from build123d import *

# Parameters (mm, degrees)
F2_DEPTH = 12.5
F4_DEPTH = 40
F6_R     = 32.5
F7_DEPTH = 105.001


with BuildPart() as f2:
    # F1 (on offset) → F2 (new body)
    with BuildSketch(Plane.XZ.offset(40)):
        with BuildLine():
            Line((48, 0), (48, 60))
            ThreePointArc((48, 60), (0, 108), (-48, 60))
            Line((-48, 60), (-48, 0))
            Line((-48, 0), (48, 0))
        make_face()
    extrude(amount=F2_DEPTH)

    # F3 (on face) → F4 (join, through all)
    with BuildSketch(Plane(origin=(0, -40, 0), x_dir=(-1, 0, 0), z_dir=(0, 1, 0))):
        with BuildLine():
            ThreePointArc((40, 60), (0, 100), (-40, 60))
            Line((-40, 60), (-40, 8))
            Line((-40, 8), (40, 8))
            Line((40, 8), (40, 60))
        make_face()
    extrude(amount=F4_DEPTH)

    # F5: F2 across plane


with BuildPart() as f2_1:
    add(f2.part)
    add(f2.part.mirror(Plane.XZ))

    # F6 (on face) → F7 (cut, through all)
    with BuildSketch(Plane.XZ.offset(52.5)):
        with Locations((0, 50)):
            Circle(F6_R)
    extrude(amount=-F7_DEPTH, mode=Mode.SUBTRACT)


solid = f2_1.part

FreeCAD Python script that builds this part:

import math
import FreeCAD as App
import Part
import Sketcher

V = App.Vector

doc = App.newDocument("Part")
body = doc.addObject("PartDesign::Body", "Body")

sketch1 = doc.addObject("Sketcher::SketchObject", "Sketch")
body.addObject(sketch1)
sketch1.AttachmentSupport = (doc.XZ_Plane, [""])
sketch1.MapMode = "FlatFace"
sketch1.AttachmentOffset = App.Placement(V(0, 0, 40), App.Rotation())
sketch1.addGeometry([
    Part.LineSegment(V(48, 0, 0), V(48, 60, 0)),
    Part.ArcOfCircle(Part.Circle(V(0, 60, 0), V(0, 0, 1), 48), math.radians(0), math.radians(180)),
    Part.LineSegment(V(-48, 60, 0), V(-48, 0, 0)),
    Part.LineSegment(V(-48, 0, 0), V(48, 0, 0)),
], False)
sketch1.addConstraint([
    Sketcher.Constraint("Tangent", 0, 2, 1, 1),
    Sketcher.Constraint("Tangent", 1, 2, 2, 1),
    Sketcher.Constraint("Coincident", 2, 2, 3, 1),
    Sketcher.Constraint("Coincident", 3, 2, 0, 1),
    Sketcher.Constraint("Vertical", 0),
    Sketcher.Constraint("Vertical", 2),
    Sketcher.Constraint("Horizontal", 3),
    Sketcher.Constraint("Symmetric", 2, 2, 3, 2, -1, 1),
    Sketcher.Constraint("Radius", 1, 48.0),
    Sketcher.Constraint("DistanceY", 0, 1, 0, 2, 60.0),
])
pad1 = doc.addObject("PartDesign::Pad", "Pad")
body.addObject(pad1)
pad1.Profile = sketch1
pad1.Length = 12.5

sketch2 = doc.addObject("Sketcher::SketchObject", "Sketch001")
body.addObject(sketch2)
sketch2.AttachmentSupport = (doc.XZ_Plane, [""])
sketch2.MapMode = "FlatFace"
sketch2.AttachmentOffset = App.Placement(V(0, 0, 40), App.Rotation())
sketch2.addGeometry([
    Part.ArcOfCircle(Part.Circle(V(0, 60, 0), V(0, 0, 1), 40), math.radians(0), math.radians(180)),
    Part.LineSegment(V(40, 60, 0), V(40, 8, 0)),
    Part.LineSegment(V(40, 8, 0), V(-40, 8, 0)),
    Part.LineSegment(V(-40, 8, 0), V(-40, 60, 0)),
], False)
sketch2.addConstraint([
    Sketcher.Constraint("Tangent", 0, 1, 1, 1),
    Sketcher.Constraint("Coincident", 1, 2, 2, 1),
    Sketcher.Constraint("Coincident", 2, 2, 3, 1),
    Sketcher.Constraint("Tangent", 3, 2, 0, 2),
    Sketcher.Constraint("Vertical", 1),
    Sketcher.Constraint("Horizontal", 2),
    Sketcher.Constraint("Vertical", 3),
    Sketcher.Constraint("PointOnObject", 0, 3, -2),
    Sketcher.Constraint("Radius", 0, 40.0),
    Sketcher.Constraint("DistanceY", 1, 2, 1, 1, 52.0),
    Sketcher.Constraint("DistanceY", -1, 1, 0, 3, 60.0),
])
pad2 = doc.addObject("PartDesign::Pad", "Pad001")
body.addObject(pad2)
pad2.Profile = sketch2
pad2.Length = 40
pad2.Reversed = True
body2 = doc.addObject("PartDesign::Body", "Body001")
doc.recompute()

body2.BaseFeature = body
doc.recompute()

mirroring = doc.addObject("Part::Mirroring", "Mirroring")
mirroring.Source = body
mirroring.Base = V(0, 0, 0)
mirroring.Normal = V(0, -1, 0)
body3 = doc.addObject("PartDesign::Body", "Body002")
body3.BaseFeature = mirroring
boolean = doc.addObject("PartDesign::Boolean", "Boolean")
body2.addObject(boolean)
boolean.Type = "Fuse"
boolean.addObjects([body3])
doc.recompute()

sketch3 = doc.addObject("Sketcher::SketchObject", "Sketch002")
body2.addObject(sketch3)
sketch3.AttachmentSupport = (doc.getObject("XZ_Plane001"), [""])
sketch3.MapMode = "FlatFace"
sketch3.AttachmentOffset = App.Placement(V(0, 0, 52.5), App.Rotation())
sketch3.addGeometry(Part.Circle(V(0, 50, 0), V(0, 0, 1), 32), False)
sketch3.addConstraint([
    Sketcher.Constraint("PointOnObject", 0, 3, -2),
    Sketcher.Constraint("Diameter", 0, 65.0),
    Sketcher.Constraint("DistanceY", -1, 1, 0, 3, 50.0),
])
pocket1 = doc.addObject("PartDesign::Pocket", "Pocket")
body2.addObject(pocket1)
pocket1.Profile = sketch3
pocket1.Type = "ThroughAll"
mirroring.Visibility = False

doc.recompute()
